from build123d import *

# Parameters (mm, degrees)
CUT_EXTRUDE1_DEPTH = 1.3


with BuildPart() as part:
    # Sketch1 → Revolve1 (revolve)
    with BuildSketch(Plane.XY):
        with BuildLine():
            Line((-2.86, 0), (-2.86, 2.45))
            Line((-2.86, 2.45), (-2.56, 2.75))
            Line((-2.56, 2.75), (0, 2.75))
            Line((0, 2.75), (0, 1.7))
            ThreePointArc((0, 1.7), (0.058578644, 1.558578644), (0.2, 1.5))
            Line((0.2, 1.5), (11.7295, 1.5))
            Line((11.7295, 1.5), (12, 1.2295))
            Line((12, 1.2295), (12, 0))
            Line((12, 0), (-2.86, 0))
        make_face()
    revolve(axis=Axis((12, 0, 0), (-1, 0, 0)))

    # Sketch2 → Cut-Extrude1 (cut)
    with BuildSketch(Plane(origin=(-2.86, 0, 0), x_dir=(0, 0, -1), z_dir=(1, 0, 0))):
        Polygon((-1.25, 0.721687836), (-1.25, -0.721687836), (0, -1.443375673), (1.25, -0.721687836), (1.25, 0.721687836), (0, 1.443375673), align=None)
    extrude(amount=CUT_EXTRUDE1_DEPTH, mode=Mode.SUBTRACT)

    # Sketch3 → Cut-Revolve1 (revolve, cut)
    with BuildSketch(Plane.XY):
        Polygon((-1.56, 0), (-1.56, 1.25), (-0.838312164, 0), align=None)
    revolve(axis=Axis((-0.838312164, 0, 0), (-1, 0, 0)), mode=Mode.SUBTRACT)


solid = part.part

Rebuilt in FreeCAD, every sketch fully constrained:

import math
import FreeCAD as App
import Part
import Sketcher
from FreeCAD import Vector
Q = App.Units.Quantity

doc = App.newDocument("Part")
body = doc.addObject("PartDesign::Body", "Body")

sketch1 = body.newObject("Sketcher::SketchObject", "Sketch")
sketch1.AttachmentSupport = (doc.getObject("XY_Plane"), [""])
sketch1.MapMode = "FlatFace"
sketch1.addGeometry([
    Part.LineSegment(Vector(-2.86, 2.45, 0), Vector(-2.86, 0, 0)),
    Part.LineSegment(Vector(-2.86, 0, 0), Vector(12, 0, 0)),
    Part.LineSegment(Vector(12, 0, 0), Vector(12, 1.23, 0)),
    Part.LineSegment(Vector(12, 1.23, 0), Vector(11.73, 1.5, 0)),
    Part.LineSegment(Vector(11.73, 1.5, 0), Vector(0.2, 1.5, 0)),
    Part.ArcOfCircle(Part.Circle(Vector(0.2, 1.7, 0), Vector(0, 0, 1), 0.2), math.radians(-180), math.radians(-90)),
    Part.LineSegment(Vector(0, 1.7, 0), Vector(0, 2.75, 0)),
    Part.LineSegment(Vector(0, 2.75, 0), Vector(-2.56, 2.75, 0)),
    Part.LineSegment(Vector(-2.56, 2.75, 0), Vector(-2.86, 2.45, 0)),
], False)
sketch1.addConstraint([
    Sketcher.Constraint("Coincident", 0, 2, 1, 1),
    Sketcher.Constraint("Coincident", 1, 2, 2, 1),
    Sketcher.Constraint("Coincident", 2, 2, 3, 1),
    Sketcher.Constraint("Coincident", 3, 2, 4, 1),
    Sketcher.Constraint("Tangent", 4, 2, 5, 2),
    Sketcher.Constraint("Tangent", 5, 1, 6, 1),
    Sketcher.Constraint("Coincident", 6, 2, 7, 1),
    Sketcher.Constraint("Coincident", 7, 2, 8, 1),
    Sketcher.Constraint("Coincident", 8, 2, 0, 1),
    Sketcher.Constraint("Vertical", 0),
    Sketcher.Constraint("Horizontal", 1),
    Sketcher.Constraint("Vertical", 2),
    Sketcher.Constraint("Horizontal", 4),
    Sketcher.Constraint("Vertical", 6),
    Sketcher.Constraint("Horizontal", 7),
    Sketcher.Constraint("PointOnObject", 0, 2, -1),
    Sketcher.Constraint("PointOnObject", 5, 1, -2),
    Sketcher.Constraint("Perpendicular", 3, 8),
    Sketcher.Constraint("Radius", 5, Q("0.2 mm")),
    Sketcher.Constraint("Angle", 3, Q("135 deg")),
    Sketcher.Constraint("DistanceX", -1, 1, 1, 2, Q("12 mm")),
    Sketcher.Constraint("DistanceX", 1, 1, 1, 2, Q("14.86 mm")),
    Sketcher.Constraint("DistanceX", 7, 2, 7, 1, Q("2.56 mm")),
    Sketcher.Constraint("DistanceY", 0, 2, 0, 1, Q("2.45 mm")),
    Sketcher.Constraint("DistanceY", 6, 1, 6, 2, Q("1.05 mm")),
    Sketcher.Constraint("DistanceX", 4, 2, 4, 1, Q("11.5295 mm")),
])
revolution = body.newObject("PartDesign::Revolution", "Revolution")
revolution.Profile = sketch1
revolution.ReferenceAxis = (sketch1, ["H_Axis"])
revolution.Angle = 360

sketch2 = body.newObject("Sketcher::SketchObject", "Sketch001")
sketch2.AttachmentSupport = (doc.getObject("YZ_Plane"), [""])
sketch2.MapMode = "FlatFace"
sketch2.AttachmentOffset = App.Placement(Vector(0, 0, -2.86), App.Rotation())
sketch2.addGeometry([
    Part.LineSegment(Vector(0.7, 1.2, 0), Vector(-0.7, 1.2, 0)),
    Part.LineSegment(Vector(-0.7, 1.2, 0), Vector(-1.4, 0, 0)),
    Part.LineSegment(Vector(-1.4, 0, 0), Vector(-0.7, -1.2, 0)),
    Part.LineSegment(Vector(-0.7, -1.2, 0), Vector(0.7, -1.2, 0)),
    Part.LineSegment(Vector(0.7, -1.2, 0), Vector(1.4, 0, 0)),
    Part.LineSegment(Vector(1.4, 0, 0), Vector(0.7, 1.2, 0)),
], False)
sketch2.addConstraint([
    Sketcher.Constraint("Coincident", 0, 2, 1, 1),
    Sketcher.Constraint("Coincident", 1, 2, 2, 1),
    Sketcher.Constraint("Coincident", 2, 2, 3, 1),
    Sketcher.Constraint("Coincident", 3, 2, 4, 1),
    Sketcher.Constraint("Coincident", 4, 2, 5, 1),
    Sketcher.Constraint("Coincident", 5, 2, 0, 1),
    Sketcher.Constraint("Horizontal", 0),
    Sketcher.Constraint("Horizontal", 3),
    Sketcher.Constraint("Symmetric", 0, 2, 3, 2, -1, 1),
    Sketcher.Constraint("Symmetric", 1, 2, 4, 2, -1, 1),
    Sketcher.Constraint("PointOnObject", 1, 2, -1),
    Sketcher.Constraint("Parallel", 2, 5),
    Sketcher.Constraint("Vertical", 0, 2, 2, 2),
    Sketcher.Constraint("Angle", 1, Q("-120 deg")),
    Sketcher.Constraint("DistanceY", 2, 2, 0, 2, Q("2.5 mm")),
    Sketcher.Constraint("DistanceX", 0, 2, 0, 1, Q("1.443376 mm")),
])
pocket1 = body.newObject("PartDesign::Pocket", "Pocket")
pocket1.Profile = sketch2
pocket1.Length = 1.3
pocket1.Reversed = True

sketch3 = body.newObject("Sketcher::SketchObject", "Sketch002")
sketch3.AttachmentSupport = (doc.getObject("XY_Plane"), [""])
sketch3.MapMode = "FlatFace"
sketch3.addGeometry([
    Part.LineSegment(Vector(-1.6, 1.2, 0), Vector(-1.6, 0, 0)),
    Part.LineSegment(Vector(-1.6, 0, 0), Vector(-0.8, 0, 0)),
    Part.LineSegment(Vector(-0.8, 0, 0), Vector(-1.6, 1.2, 0)),
], False)
sketch3.addConstraint([
    Sketcher.Constraint("Coincident", 0, 2, 1, 1),
    Sketcher.Constraint("Coincident", 1, 2, 2, 1),
    Sketcher.Constraint("Coincident", 2, 2, 0, 1),
    Sketcher.Constraint("Vertical", 0),
    Sketcher.Constraint("Horizontal", 1),
    Sketcher.Constraint("PointOnObject", 0, 2, -1),
    Sketcher.Constraint("Angle", 2, Q("120 deg")),
    Sketcher.Constraint("DistanceY", 0, 2, 0, 1, Q("1.25 mm")),
    Sketcher.Constraint("DistanceX", 0, 2, -1, 1, Q("1.56 mm")),
])
groove = body.newObject("PartDesign::Groove", "Groove")
groove.Profile = sketch3
groove.ReferenceAxis = (sketch3, ["H_Axis"])
groove.Angle = 360

doc.recompute()
